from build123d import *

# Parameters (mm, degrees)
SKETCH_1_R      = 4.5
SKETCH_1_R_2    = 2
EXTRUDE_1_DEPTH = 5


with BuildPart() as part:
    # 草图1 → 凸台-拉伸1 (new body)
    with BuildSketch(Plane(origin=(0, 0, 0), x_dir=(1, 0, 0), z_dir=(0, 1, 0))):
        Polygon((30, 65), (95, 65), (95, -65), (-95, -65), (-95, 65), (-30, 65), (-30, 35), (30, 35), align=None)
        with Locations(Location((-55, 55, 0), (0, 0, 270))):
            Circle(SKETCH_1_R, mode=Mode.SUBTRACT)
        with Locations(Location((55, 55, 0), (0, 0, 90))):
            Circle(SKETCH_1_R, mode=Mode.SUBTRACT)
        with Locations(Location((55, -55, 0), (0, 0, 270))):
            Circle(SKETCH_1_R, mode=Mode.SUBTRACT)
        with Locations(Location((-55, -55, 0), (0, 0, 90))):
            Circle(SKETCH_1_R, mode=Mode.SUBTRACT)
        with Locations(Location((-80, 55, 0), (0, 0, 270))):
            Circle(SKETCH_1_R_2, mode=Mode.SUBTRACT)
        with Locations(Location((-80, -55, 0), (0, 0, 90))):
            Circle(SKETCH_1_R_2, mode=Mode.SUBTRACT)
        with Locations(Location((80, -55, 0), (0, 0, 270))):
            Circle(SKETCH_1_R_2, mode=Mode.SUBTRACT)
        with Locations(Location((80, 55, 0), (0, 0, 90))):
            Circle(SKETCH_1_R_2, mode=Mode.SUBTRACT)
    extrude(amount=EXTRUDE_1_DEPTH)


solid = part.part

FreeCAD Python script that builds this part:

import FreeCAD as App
import Part
import Sketcher
Q = App.Units.Quantity

doc = App.newDocument("Part")
body = doc.addObject("PartDesign::Body", "Body")

sketch1 = doc.addObject("Sketcher::SketchObject", "Sketch")
body.addObject(sketch1)
sketch1.AttachmentSupport = (doc.XZ_Plane, [""])
sketch1.MapMode = "FlatFace"
sketch1.addGeometry([
    Part.LineSegment(App.Vector(95, -65, 0), App.Vector(30, -65, 0)),
    Part.LineSegment(App.Vector(30, -65, 0), App.Vector(30, -35, 0)),
    Part.LineSegment(App.Vector(30, -35, 0), App.Vector(-30, -35, 0)),
    Part.LineSegment(App.Vector(-30, -35, 0), App.Vector(-30, -65, 0)),
    Part.LineSegment(App.Vector(-30, -65, 0), App.Vector(-95, -65, 0)),
    Part.LineSegment(App.Vector(-95, -65, 0), App.Vector(-95, 65, 0)),
    Part.LineSegment(App.Vector(-95, 65, 0), App.Vector(95, 65, 0)),
    Part.LineSegment(App.Vector(95, 65, 0), App.Vector(95, -65, 0)),
    Part.Circle(App.Vector(80, 55, 0), App.Vector(0, 0, 1), 2),
    Part.Circle(App.Vector(55, 55, 0), App.Vector(0, 0, 1), 4.5),
    Part.Circle(App.Vector(-55, 55, 0), App.Vector(0, 0, 1), 4.5),
    Part.Circle(App.Vector(-80, 55, 0), App.Vector(0, 0, 1), 2),
    Part.Circle(App.Vector(80, -55, 0), App.Vector(0, 0, 1), 2),
    Part.Circle(App.Vector(55, -55, 0), App.Vector(0, 0, 1), 4.5),
    Part.Circle(App.Vector(-55, -55, 0), App.Vector(0, 0, 1), 4.5),
    Part.Circle(App.Vector(-80, -55, 0), App.Vector(0, 0, 1), 2),
], False)
sketch1.addConstraint([
    Sketcher.Constraint("Coincident", 0, 2, 1, 1),
    Sketcher.Constraint("Coincident", 1, 2, 2, 1),
    Sketcher.Constraint("Coincident", 2, 2, 3, 1),
    Sketcher.Constraint("Coincident", 3, 2, 4, 1),
    Sketcher.Constraint("Coincident", 4, 2, 5, 1),
    Sketcher.Constraint("Coincident", 5, 2, 6, 1),
    Sketcher.Constraint("Coincident", 6, 2, 7, 1),
    Sketcher.Constraint("Coincident", 7, 2, 0, 1),
    Sketcher.Constraint("Horizontal", 0),
    Sketcher.Constraint("Vertical", 1),
    Sketcher.Constraint("Horizontal", 2),
    Sketcher.Constraint("Vertical", 3),
    Sketcher.Constraint("Horizontal", 4),
    Sketcher.Constraint("Vertical", 5),
    Sketcher.Constraint("Horizontal", 6),
    Sketcher.Constraint("Vertical", 7),
    Sketcher.Constraint("Equal", 9, 10),
    Sketcher.Constraint("Equal", 8, 11),
    Sketcher.Constraint("Equal", 11, 12),
    Sketcher.Constraint("Equal", 10, 13),
    Sketcher.Constraint("Equal", 13, 14),
    Sketcher.Constraint("Equal", 12, 15),
    Sketcher.Constraint("Symmetric", 11, 3, 12, 3, -1, 1),
    Sketcher.Constraint("Symmetric", 10, 3, 13, 3, -1, 1),
    Sketcher.Constraint("Symmetric", 9, 3, 14, 3, -1, 1),
    Sketcher.Constraint("Symmetric", 8, 3, 15, 3, -1, 1),
    Sketcher.Constraint("Symmetric", 4, 2, 6, 2, -1, 1),
    Sketcher.Constraint("Symmetric", 9, 3, 10, 3, -2),
    Sketcher.Constraint("Symmetric", 8, 3, 11, 3, -2),
    Sketcher.Constraint("Symmetric", 0, 2, 3, 2, -2),
    Sketcher.Constraint("Horizontal", 8, 3, 9, 3),
    Sketcher.Constraint("Diameter", 8, Q("4 mm")),
    Sketcher.Constraint("Diameter", 9, Q("9 mm")),
    Sketcher.Constraint("DistanceX", 0, 2, 0, 1, Q("65 mm")),
    Sketcher.Constraint("DistanceX", 2, 2, 2, 1, Q("60 mm")),
    Sketcher.Constraint("DistanceY", 1, 1, 1, 2, Q("30 mm")),
    Sketcher.Constraint("DistanceY", 5, 1, 5, 2, Q("130 mm")),
    Sketcher.Constraint("DistanceX", -1, 1, 8, 3, Q("80 mm")),
    Sketcher.Constraint("DistanceY", -1, 1, 8, 3, Q("55 mm")),
    Sketcher.Constraint("DistanceX", -1, 1, 9, 3, Q("55 mm")),
])
pad1 = doc.addObject("PartDesign::Pad", "Pad")
body.addObject(pad1)
pad1.Profile = sketch1
pad1.Length = 5
pad1.Reversed = True

doc.recompute()
